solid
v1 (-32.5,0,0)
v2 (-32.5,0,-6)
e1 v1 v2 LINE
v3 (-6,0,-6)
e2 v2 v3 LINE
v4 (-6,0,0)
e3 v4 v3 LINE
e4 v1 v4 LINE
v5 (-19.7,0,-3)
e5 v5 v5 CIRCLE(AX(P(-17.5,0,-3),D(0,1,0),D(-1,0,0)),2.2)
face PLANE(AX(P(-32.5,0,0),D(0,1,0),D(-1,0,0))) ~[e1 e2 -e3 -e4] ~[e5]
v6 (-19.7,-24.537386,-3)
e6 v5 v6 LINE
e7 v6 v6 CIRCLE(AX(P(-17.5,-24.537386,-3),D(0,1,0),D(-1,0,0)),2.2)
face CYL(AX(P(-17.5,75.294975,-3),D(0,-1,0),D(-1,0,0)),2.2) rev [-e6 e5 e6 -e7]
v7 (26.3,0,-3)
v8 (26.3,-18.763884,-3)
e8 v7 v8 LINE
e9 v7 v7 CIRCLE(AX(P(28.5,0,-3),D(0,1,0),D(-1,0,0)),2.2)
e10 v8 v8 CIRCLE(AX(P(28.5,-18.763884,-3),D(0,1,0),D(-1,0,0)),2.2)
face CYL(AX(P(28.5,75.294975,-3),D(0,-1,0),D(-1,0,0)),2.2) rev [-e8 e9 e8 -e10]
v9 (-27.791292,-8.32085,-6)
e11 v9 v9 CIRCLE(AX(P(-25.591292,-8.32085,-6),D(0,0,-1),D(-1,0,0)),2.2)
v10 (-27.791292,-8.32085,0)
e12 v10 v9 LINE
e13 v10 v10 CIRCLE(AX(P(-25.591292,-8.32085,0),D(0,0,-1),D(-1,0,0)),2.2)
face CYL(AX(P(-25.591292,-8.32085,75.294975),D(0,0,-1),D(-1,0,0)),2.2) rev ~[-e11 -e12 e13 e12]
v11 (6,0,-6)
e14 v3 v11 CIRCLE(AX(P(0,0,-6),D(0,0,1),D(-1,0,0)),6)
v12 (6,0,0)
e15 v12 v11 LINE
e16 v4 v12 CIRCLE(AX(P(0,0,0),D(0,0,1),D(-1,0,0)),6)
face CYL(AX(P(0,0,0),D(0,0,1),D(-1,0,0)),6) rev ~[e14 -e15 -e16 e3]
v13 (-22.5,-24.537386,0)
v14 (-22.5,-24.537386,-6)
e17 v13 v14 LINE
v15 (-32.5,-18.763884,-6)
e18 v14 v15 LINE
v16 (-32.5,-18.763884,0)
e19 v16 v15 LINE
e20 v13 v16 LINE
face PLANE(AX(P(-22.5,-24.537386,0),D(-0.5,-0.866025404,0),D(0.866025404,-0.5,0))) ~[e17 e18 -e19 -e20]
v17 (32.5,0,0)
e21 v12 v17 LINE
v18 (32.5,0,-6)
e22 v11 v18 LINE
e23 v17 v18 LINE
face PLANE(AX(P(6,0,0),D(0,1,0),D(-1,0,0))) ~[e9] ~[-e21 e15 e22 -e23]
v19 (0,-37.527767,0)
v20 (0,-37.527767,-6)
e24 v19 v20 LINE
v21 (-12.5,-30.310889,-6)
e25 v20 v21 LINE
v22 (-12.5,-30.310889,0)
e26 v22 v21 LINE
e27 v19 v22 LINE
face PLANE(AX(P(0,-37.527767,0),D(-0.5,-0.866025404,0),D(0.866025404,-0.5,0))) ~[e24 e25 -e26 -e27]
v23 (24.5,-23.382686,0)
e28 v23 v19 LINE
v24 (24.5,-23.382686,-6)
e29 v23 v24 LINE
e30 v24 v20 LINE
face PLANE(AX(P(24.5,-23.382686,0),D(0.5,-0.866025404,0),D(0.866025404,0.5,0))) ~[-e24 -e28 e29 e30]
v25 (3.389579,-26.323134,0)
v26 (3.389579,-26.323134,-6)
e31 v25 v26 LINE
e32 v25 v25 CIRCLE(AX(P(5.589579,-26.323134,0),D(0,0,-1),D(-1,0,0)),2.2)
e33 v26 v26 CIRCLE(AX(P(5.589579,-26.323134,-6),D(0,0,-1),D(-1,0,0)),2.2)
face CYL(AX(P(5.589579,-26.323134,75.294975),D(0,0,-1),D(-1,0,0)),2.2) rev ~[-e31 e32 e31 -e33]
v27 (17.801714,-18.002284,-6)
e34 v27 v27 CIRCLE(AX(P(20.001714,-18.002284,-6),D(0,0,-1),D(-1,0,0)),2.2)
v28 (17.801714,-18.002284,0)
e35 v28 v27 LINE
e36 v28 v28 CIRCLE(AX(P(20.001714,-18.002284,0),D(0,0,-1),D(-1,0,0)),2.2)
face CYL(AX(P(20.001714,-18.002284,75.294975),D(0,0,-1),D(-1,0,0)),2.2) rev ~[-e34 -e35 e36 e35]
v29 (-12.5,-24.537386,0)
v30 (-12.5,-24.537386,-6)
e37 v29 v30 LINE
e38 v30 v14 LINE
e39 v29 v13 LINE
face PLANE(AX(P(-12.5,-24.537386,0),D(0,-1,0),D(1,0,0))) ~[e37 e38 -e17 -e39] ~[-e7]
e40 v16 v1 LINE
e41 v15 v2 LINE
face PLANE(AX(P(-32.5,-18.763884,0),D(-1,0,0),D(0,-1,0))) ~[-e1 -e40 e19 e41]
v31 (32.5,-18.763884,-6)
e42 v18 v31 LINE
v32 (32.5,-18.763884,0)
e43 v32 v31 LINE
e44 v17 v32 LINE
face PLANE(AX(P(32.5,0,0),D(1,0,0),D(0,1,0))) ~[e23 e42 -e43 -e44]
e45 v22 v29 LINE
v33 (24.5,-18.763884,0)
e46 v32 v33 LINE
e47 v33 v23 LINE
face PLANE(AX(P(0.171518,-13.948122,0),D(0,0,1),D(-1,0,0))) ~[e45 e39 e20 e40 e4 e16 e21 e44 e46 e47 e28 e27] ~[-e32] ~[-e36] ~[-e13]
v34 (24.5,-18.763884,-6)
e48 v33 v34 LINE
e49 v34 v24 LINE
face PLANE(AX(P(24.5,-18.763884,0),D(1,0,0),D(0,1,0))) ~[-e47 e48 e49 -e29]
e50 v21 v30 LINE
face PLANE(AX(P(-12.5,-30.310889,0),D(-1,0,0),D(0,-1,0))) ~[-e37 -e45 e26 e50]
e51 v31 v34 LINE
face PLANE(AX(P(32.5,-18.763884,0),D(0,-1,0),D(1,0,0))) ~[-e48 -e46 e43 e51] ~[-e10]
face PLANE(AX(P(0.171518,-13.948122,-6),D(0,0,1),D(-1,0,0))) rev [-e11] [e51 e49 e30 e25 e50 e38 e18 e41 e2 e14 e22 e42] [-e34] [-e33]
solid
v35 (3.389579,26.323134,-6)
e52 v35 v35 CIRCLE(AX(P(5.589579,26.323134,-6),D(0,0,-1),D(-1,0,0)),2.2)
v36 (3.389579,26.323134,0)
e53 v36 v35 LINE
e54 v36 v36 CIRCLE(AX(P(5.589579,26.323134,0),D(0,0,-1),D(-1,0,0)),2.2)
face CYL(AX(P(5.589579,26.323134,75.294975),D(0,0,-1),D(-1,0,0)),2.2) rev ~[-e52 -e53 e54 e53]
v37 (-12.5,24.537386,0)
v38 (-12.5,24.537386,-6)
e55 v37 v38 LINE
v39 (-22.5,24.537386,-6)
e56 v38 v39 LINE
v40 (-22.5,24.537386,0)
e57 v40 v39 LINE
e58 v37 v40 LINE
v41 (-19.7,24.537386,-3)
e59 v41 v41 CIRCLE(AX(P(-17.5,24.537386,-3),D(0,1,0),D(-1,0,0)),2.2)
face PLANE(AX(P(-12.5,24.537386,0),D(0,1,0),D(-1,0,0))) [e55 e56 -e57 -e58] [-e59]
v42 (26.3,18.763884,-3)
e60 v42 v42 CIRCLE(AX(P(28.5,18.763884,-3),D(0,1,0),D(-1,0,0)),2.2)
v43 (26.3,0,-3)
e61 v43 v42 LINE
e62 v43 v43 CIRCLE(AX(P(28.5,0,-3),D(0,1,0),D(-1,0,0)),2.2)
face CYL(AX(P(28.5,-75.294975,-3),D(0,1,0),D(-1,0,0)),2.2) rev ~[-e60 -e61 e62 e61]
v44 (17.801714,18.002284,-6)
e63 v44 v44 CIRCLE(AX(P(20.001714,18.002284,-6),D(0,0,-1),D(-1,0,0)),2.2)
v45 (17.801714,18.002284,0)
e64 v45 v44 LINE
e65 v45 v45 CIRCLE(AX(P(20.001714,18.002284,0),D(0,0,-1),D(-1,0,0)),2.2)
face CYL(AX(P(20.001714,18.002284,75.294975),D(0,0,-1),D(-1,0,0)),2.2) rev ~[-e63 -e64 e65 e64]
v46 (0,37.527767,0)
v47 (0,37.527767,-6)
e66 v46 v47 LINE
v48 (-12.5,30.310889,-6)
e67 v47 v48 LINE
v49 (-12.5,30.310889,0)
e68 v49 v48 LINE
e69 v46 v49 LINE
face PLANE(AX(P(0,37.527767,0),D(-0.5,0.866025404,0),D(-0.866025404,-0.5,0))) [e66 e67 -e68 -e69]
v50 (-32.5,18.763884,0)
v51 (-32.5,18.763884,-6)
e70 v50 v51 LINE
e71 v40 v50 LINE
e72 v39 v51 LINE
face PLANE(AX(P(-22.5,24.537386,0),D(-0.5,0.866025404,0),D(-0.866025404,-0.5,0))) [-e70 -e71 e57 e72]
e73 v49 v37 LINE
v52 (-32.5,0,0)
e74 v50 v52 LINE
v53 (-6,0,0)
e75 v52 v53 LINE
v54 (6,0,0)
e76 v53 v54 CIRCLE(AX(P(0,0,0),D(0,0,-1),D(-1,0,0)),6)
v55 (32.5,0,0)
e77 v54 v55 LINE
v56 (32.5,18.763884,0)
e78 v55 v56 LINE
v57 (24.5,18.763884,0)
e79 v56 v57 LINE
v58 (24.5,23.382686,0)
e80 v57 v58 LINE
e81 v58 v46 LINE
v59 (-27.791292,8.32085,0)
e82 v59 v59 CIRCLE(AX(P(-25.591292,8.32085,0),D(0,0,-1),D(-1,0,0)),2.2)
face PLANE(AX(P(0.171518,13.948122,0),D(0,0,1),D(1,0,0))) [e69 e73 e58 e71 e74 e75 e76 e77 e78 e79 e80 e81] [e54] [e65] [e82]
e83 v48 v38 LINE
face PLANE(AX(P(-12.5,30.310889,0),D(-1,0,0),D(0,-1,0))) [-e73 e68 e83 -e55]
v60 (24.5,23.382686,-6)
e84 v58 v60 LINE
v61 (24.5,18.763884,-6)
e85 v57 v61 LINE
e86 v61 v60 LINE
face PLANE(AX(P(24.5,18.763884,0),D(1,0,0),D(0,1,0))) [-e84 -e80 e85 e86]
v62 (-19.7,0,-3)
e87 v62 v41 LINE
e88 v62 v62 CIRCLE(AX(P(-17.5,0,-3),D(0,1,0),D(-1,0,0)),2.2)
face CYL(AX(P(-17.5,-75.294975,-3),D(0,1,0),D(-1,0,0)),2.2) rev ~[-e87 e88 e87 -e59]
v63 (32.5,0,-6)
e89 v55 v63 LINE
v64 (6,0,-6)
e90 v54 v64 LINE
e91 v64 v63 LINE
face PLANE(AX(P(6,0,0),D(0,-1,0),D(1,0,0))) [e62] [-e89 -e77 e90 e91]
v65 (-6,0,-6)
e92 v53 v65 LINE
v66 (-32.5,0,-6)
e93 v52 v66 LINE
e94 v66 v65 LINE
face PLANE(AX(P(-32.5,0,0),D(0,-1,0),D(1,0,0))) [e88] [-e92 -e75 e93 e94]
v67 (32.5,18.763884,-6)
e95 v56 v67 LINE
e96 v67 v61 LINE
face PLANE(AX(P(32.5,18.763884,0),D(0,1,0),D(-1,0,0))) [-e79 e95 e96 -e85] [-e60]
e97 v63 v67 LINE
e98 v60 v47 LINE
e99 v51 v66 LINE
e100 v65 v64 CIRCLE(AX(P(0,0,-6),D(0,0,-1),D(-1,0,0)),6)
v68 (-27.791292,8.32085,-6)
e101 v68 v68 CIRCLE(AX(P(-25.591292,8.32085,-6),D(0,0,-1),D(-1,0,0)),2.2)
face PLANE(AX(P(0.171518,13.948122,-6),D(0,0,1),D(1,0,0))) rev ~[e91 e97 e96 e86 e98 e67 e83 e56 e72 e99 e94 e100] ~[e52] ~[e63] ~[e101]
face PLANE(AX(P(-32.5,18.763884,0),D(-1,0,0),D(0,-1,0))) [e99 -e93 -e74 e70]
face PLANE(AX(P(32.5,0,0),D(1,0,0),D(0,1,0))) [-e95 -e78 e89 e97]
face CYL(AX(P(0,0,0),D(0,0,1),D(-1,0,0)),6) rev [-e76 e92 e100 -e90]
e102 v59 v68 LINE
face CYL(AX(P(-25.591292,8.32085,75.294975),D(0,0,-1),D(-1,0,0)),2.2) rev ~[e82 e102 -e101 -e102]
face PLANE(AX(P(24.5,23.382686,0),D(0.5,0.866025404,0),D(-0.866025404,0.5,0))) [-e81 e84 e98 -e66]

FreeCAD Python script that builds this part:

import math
import FreeCAD as App
import Part
import Sketcher
from FreeCAD import Vector
Q = App.Units.Quantity

doc = App.newDocument("Part")
body = doc.addObject("PartDesign::Body", "Body")

sketch1 = doc.addObject("Sketcher::SketchObject", "Sketch")
body.addObject(sketch1)
sketch1.AttachmentSupport = (doc.XY_Plane, [""])
sketch1.MapMode = "FlatFace"
sketch1.addGeometry(Part.ArcOfCircle(Part.Circle(Vector(0, 0, 0), Vector(0, 0, 1), 6), math.radians(0), math.radians(180)), False)
sketch1.addGeometry(Part.LineSegment(Vector(6, 0, 0), Vector(32.5, 0, 0)), False)
sketch1.addGeometry(Part.LineSegment(Vector(32.5, 0, 0), Vector(32.5, 18.763884, 0)), False)
sketch1.addGeometry(Part.LineSegment(Vector(32.5, 18.763884, 0), Vector(24.5, 18.763884, 0)), False)
sketch1.addGeometry(Part.LineSegment(Vector(24.5, 18.763884, 0), Vector(24.5, 23.382686, 0)), False)
sketch1.addGeometry(Part.LineSegment(Vector(24.5, 23.382686, 0), Vector(0, 37.527767, 0)), False)
sketch1.addGeometry(Part.LineSegment(Vector(0, 37.527767, 0), Vector(-12.5, 30.310889, 0)), False)
sketch1.addGeometry(Part.LineSegment(Vector(-12.5, 30.310889, 0), Vector(-12.5, 24.537386, 0)), False)
sketch1.addGeometry(Part.LineSegment(Vector(-12.5, 24.537386, 0), Vector(-22.5, 24.537386, 0)), False)
sketch1.addGeometry(Part.LineSegment(Vector(-22.5, 24.537386, 0), Vector(-32.5, 18.763884, 0)), False)
sketch1.addGeometry(Part.LineSegment(Vector(-32.5, 18.763884, 0), Vector(-32.5, 0, 0)), False)
sketch1.addGeometry(Part.LineSegment(Vector(-32.5, 0, 0), Vector(-6, 0, 0)), False)
sketch1.addConstraint(Sketcher.Constraint("Coincident", 0, 1, 1, 1))
sketch1.addConstraint(Sketcher.Constraint("Coincident", 1, 2, 2, 1))
sketch1.addConstraint(Sketcher.Constraint("Coincident", 2, 2, 3, 1))
sketch1.addConstraint(Sketcher.Constraint("Coincident", 3, 2, 4, 1))
sketch1.addConstraint(Sketcher.Constraint("Coincident", 4, 2, 5, 1))
sketch1.addConstraint(Sketcher.Constraint("Coincident", 5, 2, 6, 1))
sketch1.addConstraint(Sketcher.Constraint("Coincident", 6, 2, 7, 1))
sketch1.addConstraint(Sketcher.Constraint("Coincident", 7, 2, 8, 1))
sketch1.addConstraint(Sketcher.Constraint("Coincident", 8, 2, 9, 1))
sketch1.addConstraint(Sketcher.Constraint("Coincident", 9, 2, 10, 1))
sketch1.addConstraint(Sketcher.Constraint("Coincident", 10, 2, 11, 1))
sketch1.addConstraint(Sketcher.Constraint("Coincident", 11, 2, 0, 2))
sketch1.addConstraint(Sketcher.Constraint("Horizontal", 1))
sketch1.addConstraint(Sketcher.Constraint("Vertical", 2))
sketch1.addConstraint(Sketcher.Constraint("Horizontal", 3))
sketch1.addConstraint(Sketcher.Constraint("Vertical", 4))
sketch1.addConstraint(Sketcher.Constraint("Vertical", 7))
sketch1.addConstraint(Sketcher.Constraint("Horizontal", 8))
sketch1.addConstraint(Sketcher.Constraint("Vertical", 10))
sketch1.addConstraint(Sketcher.Constraint("Horizontal", 11))
sketch1.addConstraint(Sketcher.Constraint("Coincident", 0, 3, -1, 1))
sketch1.addConstraint(Sketcher.Constraint("Symmetric", 1, 2, 10, 2, -1, 1))
sketch1.addConstraint(Sketcher.Constraint("PointOnObject", 0, 1, -1))
sketch1.addConstraint(Sketcher.Constraint("PointOnObject", 5, 2, -2))
sketch1.addConstraint(Sketcher.Constraint("Parallel", 6, 9))
sketch1.addConstraint(Sketcher.Constraint("Horizontal", 3, 2, 9, 2))
sketch1.addConstraint(Sketcher.Constraint("Radius", 0, 6.0))
sketch1.addConstraint(Sketcher.Constraint("DistanceX", 3, 2, 3, 1, 8.0))
sketch1.addConstraint(Sketcher.Constraint("DistanceX", 8, 2, 8, 1, 10.0))
sketch1.addConstraint(Sketcher.Constraint("Angle", 5, Q("150 deg")))
sketch1.addConstraint(Sketcher.Constraint("Angle", 6, Q("-150 deg")))
sketch1.addConstraint(Sketcher.Constraint("DistanceX", 1, 1, 1, 2, 26.5))
sketch1.addConstraint(Sketcher.Constraint("DistanceX", 6, 2, 4, 2, 37.0))
sketch1.addConstraint(Sketcher.Constraint("DistanceY", 4, 2, 7, 2, 1.154701))
sketch1.addConstraint(Sketcher.Constraint("DistanceY", 2, 1, 2, 2, 18.763884))
pad1 = doc.addObject("PartDesign::Pad", "Pad")
body.addObject(pad1)
pad1.Profile = sketch1
pad1.Length = 6
pad1.Reversed = True

sketch2 = doc.addObject("Sketcher::SketchObject", "Sketch001")
body.addObject(sketch2)
sketch2.AttachmentSupport = (doc.XZ_Plane, [""])
sketch2.MapMode = "FlatFace"
sketch2.addGeometry(Part.Circle(Vector(28.5, -3, 0), Vector(0, 0, 1), 2.2), False)
sketch2.addGeometry(Part.Circle(Vector(-17.5, -3, 0), Vector(0, 0, 1), 2.2), False)
sketch2.addConstraint(Sketcher.Constraint("Equal", 0, 1))
sketch2.addConstraint(Sketcher.Constraint("Horizontal", 0, 3, 1, 3))
sketch2.addConstraint(Sketcher.Constraint("Diameter", 0, 4.4))
sketch2.addConstraint(Sketcher.Constraint("DistanceY", 0, 3, -1, 1, 3.0))
sketch2.addConstraint(Sketcher.Constraint("DistanceX", 1, 3, 0, 3, 46.0))
sketch2.addConstraint(Sketcher.Constraint("DistanceX", -1, 1, 0, 3, 28.5))
doc.recompute()
hole = doc.addObject("PartDesign::Hole", "Hole")
body.addObject(hole)
hole.Profile = sketch2
hole.ThreadType = "None"
hole.Diameter = 4.4
hole.DepthType = "ThroughAll"
body2 = doc.addObject("PartDesign::Body", "Body001")
doc.recompute()

mirroring = doc.addObject("Part::Mirroring", "Mirroring")
mirroring.Source = body
mirroring.Base = Vector(0, 0, 0)
mirroring.Normal = Vector(0, -1, 0)
body2.BaseFeature = mirroring
doc.recompute()

sketch3 = doc.addObject("Sketcher::SketchObject", "Sketch002")
body2.addObject(sketch3)
sketch3.AttachmentSupport = (doc.getObject("XY_Plane001"), [""])
sketch3.MapMode = "FlatFace"
sketch3.addGeometry(Part.Circle(Vector(-25.591292, -8.32085, 0), Vector(0, 0, 1), 2.2), False)
sketch3.addGeometry(Part.Circle(Vector(-25.591292, 8.32085, 0), Vector(0, 0, 1), 2.2), False)
sketch3.addGeometry(Part.Circle(Vector(5.589579, 26.323134, 0), Vector(0, 0, 1), 2.2), False)
sketch3.addGeometry(Part.Circle(Vector(20.001714, 18.002284, 0), Vector(0, 0, 1), 2.2), False)
sketch3.addGeometry(Part.Circle(Vector(20.001714, -18.002284, 0), Vector(0, 0, 1), 2.2), False)
sketch3.addGeometry(Part.Circle(Vector(5.589579, -26.323134, 0), Vector(0, 0, 1), 2.2), False)
sketch3.addConstraint(Sketcher.Constraint("Equal", 0, 1))
sketch3.addConstraint(Sketcher.Constraint("Equal", 1, 2))
sketch3.addConstraint(Sketcher.Constraint("Equal", 2, 3))
sketch3.addConstraint(Sketcher.Constraint("Equal", 3, 4))
sketch3.addConstraint(Sketcher.Constraint("Equal", 4, 5))
sketch3.addConstraint(Sketcher.Constraint("Symmetric", 0, 3, 1, 3, -1))
sketch3.addConstraint(Sketcher.Constraint("Symmetric", 3, 3, 4, 3, -1))
sketch3.addConstraint(Sketcher.Constraint("Symmetric", 2, 3, 5, 3, -1))
sketch3.addConstraint(Sketcher.Constraint("Diameter", 0, 4.4))
sketch3.addConstraint(Sketcher.Constraint("DistanceY", 0, 3, 1, 3, 16.6417))
sketch3.addConstraint(Sketcher.Constraint("DistanceX", -1, 1, 2, 3, 5.589579))
sketch3.addConstraint(Sketcher.Constraint("DistanceX", 1, 3, 2, 3, 31.180871))
sketch3.addConstraint(Sketcher.Constraint("DistanceY", 3, 3, 2, 3, 8.32085))
sketch3.addConstraint(Sketcher.Constraint("DistanceY", 4, 3, 3, 3, 36.004569))
sketch3.addConstraint(Sketcher.Constraint("DistanceX", -1, 1, 3, 3, 20.001714))
doc.recompute()
hole2 = doc.addObject("PartDesign::Hole", "Hole001")
body2.addObject(hole2)
hole2.Profile = sketch3
hole2.ThreadType = "None"
hole2.Diameter = 4.4
hole2.DepthType = "ThroughAll"

sketch4 = doc.addObject("Sketcher::SketchObject", "Sketch003")
body.addObject(sketch4)
sketch4.AttachmentSupport = (doc.XY_Plane, [""])
sketch4.MapMode = "FlatFace"
sketch4.addGeometry(Part.Circle(Vector(-25.591292, -8.32085, 0), Vector(0, 0, 1), 2.2), False)
sketch4.addGeometry(Part.Circle(Vector(-25.591292, 8.32085, 0), Vector(0, 0, 1), 2.2), False)
sketch4.addGeometry(Part.Circle(Vector(5.589579, 26.323134, 0), Vector(0, 0, 1), 2.2), False)
sketch4.addGeometry(Part.Circle(Vector(20.001714, 18.002284, 0), Vector(0, 0, 1), 2.2), False)
sketch4.addGeometry(Part.Circle(Vector(20.001714, -18.002284, 0), Vector(0, 0, 1), 2.2), False)
sketch4.addGeometry(Part.Circle(Vector(5.589579, -26.323134, 0), Vector(0, 0, 1), 2.2), False)
sketch4.addConstraint(Sketcher.Constraint("Equal", 0, 1))
sketch4.addConstraint(Sketcher.Constraint("Equal", 1, 2))
sketch4.addConstraint(Sketcher.Constraint("Equal", 2, 3))
sketch4.addConstraint(Sketcher.Constraint("Equal", 3, 4))
sketch4.addConstraint(Sketcher.Constraint("Equal", 4, 5))
sketch4.addConstraint(Sketcher.Constraint("Symmetric", 0, 3, 1, 3, -1))
sketch4.addConstraint(Sketcher.Constraint("Symmetric", 3, 3, 4, 3, -1))
sketch4.addConstraint(Sketcher.Constraint("Symmetric", 2, 3, 5, 3, -1))
sketch4.addConstraint(Sketcher.Constraint("Diameter", 0, 4.4))
sketch4.addConstraint(Sketcher.Constraint("DistanceY", 0, 3, 1, 3, 16.6417))
sketch4.addConstraint(Sketcher.Constraint("DistanceX", -1, 1, 2, 3, 5.589579))
sketch4.addConstraint(Sketcher.Constraint("DistanceX", 1, 3, 2, 3, 31.180871))
sketch4.addConstraint(Sketcher.Constraint("DistanceY", 3, 3, 2, 3, 8.32085))
sketch4.addConstraint(Sketcher.Constraint("DistanceY", 4, 3, 3, 3, 36.004569))
sketch4.addConstraint(Sketcher.Constraint("DistanceX", -1, 1, 3, 3, 20.001714))
doc.recompute()
hole3 = doc.addObject("PartDesign::Hole", "Hole002")
body.addObject(hole3)
hole3.Profile = sketch4
hole3.ThreadType = "None"
hole3.Diameter = 4.4
hole3.DepthType = "ThroughAll"
mirroring.Visibility = False

doc.recompute()
